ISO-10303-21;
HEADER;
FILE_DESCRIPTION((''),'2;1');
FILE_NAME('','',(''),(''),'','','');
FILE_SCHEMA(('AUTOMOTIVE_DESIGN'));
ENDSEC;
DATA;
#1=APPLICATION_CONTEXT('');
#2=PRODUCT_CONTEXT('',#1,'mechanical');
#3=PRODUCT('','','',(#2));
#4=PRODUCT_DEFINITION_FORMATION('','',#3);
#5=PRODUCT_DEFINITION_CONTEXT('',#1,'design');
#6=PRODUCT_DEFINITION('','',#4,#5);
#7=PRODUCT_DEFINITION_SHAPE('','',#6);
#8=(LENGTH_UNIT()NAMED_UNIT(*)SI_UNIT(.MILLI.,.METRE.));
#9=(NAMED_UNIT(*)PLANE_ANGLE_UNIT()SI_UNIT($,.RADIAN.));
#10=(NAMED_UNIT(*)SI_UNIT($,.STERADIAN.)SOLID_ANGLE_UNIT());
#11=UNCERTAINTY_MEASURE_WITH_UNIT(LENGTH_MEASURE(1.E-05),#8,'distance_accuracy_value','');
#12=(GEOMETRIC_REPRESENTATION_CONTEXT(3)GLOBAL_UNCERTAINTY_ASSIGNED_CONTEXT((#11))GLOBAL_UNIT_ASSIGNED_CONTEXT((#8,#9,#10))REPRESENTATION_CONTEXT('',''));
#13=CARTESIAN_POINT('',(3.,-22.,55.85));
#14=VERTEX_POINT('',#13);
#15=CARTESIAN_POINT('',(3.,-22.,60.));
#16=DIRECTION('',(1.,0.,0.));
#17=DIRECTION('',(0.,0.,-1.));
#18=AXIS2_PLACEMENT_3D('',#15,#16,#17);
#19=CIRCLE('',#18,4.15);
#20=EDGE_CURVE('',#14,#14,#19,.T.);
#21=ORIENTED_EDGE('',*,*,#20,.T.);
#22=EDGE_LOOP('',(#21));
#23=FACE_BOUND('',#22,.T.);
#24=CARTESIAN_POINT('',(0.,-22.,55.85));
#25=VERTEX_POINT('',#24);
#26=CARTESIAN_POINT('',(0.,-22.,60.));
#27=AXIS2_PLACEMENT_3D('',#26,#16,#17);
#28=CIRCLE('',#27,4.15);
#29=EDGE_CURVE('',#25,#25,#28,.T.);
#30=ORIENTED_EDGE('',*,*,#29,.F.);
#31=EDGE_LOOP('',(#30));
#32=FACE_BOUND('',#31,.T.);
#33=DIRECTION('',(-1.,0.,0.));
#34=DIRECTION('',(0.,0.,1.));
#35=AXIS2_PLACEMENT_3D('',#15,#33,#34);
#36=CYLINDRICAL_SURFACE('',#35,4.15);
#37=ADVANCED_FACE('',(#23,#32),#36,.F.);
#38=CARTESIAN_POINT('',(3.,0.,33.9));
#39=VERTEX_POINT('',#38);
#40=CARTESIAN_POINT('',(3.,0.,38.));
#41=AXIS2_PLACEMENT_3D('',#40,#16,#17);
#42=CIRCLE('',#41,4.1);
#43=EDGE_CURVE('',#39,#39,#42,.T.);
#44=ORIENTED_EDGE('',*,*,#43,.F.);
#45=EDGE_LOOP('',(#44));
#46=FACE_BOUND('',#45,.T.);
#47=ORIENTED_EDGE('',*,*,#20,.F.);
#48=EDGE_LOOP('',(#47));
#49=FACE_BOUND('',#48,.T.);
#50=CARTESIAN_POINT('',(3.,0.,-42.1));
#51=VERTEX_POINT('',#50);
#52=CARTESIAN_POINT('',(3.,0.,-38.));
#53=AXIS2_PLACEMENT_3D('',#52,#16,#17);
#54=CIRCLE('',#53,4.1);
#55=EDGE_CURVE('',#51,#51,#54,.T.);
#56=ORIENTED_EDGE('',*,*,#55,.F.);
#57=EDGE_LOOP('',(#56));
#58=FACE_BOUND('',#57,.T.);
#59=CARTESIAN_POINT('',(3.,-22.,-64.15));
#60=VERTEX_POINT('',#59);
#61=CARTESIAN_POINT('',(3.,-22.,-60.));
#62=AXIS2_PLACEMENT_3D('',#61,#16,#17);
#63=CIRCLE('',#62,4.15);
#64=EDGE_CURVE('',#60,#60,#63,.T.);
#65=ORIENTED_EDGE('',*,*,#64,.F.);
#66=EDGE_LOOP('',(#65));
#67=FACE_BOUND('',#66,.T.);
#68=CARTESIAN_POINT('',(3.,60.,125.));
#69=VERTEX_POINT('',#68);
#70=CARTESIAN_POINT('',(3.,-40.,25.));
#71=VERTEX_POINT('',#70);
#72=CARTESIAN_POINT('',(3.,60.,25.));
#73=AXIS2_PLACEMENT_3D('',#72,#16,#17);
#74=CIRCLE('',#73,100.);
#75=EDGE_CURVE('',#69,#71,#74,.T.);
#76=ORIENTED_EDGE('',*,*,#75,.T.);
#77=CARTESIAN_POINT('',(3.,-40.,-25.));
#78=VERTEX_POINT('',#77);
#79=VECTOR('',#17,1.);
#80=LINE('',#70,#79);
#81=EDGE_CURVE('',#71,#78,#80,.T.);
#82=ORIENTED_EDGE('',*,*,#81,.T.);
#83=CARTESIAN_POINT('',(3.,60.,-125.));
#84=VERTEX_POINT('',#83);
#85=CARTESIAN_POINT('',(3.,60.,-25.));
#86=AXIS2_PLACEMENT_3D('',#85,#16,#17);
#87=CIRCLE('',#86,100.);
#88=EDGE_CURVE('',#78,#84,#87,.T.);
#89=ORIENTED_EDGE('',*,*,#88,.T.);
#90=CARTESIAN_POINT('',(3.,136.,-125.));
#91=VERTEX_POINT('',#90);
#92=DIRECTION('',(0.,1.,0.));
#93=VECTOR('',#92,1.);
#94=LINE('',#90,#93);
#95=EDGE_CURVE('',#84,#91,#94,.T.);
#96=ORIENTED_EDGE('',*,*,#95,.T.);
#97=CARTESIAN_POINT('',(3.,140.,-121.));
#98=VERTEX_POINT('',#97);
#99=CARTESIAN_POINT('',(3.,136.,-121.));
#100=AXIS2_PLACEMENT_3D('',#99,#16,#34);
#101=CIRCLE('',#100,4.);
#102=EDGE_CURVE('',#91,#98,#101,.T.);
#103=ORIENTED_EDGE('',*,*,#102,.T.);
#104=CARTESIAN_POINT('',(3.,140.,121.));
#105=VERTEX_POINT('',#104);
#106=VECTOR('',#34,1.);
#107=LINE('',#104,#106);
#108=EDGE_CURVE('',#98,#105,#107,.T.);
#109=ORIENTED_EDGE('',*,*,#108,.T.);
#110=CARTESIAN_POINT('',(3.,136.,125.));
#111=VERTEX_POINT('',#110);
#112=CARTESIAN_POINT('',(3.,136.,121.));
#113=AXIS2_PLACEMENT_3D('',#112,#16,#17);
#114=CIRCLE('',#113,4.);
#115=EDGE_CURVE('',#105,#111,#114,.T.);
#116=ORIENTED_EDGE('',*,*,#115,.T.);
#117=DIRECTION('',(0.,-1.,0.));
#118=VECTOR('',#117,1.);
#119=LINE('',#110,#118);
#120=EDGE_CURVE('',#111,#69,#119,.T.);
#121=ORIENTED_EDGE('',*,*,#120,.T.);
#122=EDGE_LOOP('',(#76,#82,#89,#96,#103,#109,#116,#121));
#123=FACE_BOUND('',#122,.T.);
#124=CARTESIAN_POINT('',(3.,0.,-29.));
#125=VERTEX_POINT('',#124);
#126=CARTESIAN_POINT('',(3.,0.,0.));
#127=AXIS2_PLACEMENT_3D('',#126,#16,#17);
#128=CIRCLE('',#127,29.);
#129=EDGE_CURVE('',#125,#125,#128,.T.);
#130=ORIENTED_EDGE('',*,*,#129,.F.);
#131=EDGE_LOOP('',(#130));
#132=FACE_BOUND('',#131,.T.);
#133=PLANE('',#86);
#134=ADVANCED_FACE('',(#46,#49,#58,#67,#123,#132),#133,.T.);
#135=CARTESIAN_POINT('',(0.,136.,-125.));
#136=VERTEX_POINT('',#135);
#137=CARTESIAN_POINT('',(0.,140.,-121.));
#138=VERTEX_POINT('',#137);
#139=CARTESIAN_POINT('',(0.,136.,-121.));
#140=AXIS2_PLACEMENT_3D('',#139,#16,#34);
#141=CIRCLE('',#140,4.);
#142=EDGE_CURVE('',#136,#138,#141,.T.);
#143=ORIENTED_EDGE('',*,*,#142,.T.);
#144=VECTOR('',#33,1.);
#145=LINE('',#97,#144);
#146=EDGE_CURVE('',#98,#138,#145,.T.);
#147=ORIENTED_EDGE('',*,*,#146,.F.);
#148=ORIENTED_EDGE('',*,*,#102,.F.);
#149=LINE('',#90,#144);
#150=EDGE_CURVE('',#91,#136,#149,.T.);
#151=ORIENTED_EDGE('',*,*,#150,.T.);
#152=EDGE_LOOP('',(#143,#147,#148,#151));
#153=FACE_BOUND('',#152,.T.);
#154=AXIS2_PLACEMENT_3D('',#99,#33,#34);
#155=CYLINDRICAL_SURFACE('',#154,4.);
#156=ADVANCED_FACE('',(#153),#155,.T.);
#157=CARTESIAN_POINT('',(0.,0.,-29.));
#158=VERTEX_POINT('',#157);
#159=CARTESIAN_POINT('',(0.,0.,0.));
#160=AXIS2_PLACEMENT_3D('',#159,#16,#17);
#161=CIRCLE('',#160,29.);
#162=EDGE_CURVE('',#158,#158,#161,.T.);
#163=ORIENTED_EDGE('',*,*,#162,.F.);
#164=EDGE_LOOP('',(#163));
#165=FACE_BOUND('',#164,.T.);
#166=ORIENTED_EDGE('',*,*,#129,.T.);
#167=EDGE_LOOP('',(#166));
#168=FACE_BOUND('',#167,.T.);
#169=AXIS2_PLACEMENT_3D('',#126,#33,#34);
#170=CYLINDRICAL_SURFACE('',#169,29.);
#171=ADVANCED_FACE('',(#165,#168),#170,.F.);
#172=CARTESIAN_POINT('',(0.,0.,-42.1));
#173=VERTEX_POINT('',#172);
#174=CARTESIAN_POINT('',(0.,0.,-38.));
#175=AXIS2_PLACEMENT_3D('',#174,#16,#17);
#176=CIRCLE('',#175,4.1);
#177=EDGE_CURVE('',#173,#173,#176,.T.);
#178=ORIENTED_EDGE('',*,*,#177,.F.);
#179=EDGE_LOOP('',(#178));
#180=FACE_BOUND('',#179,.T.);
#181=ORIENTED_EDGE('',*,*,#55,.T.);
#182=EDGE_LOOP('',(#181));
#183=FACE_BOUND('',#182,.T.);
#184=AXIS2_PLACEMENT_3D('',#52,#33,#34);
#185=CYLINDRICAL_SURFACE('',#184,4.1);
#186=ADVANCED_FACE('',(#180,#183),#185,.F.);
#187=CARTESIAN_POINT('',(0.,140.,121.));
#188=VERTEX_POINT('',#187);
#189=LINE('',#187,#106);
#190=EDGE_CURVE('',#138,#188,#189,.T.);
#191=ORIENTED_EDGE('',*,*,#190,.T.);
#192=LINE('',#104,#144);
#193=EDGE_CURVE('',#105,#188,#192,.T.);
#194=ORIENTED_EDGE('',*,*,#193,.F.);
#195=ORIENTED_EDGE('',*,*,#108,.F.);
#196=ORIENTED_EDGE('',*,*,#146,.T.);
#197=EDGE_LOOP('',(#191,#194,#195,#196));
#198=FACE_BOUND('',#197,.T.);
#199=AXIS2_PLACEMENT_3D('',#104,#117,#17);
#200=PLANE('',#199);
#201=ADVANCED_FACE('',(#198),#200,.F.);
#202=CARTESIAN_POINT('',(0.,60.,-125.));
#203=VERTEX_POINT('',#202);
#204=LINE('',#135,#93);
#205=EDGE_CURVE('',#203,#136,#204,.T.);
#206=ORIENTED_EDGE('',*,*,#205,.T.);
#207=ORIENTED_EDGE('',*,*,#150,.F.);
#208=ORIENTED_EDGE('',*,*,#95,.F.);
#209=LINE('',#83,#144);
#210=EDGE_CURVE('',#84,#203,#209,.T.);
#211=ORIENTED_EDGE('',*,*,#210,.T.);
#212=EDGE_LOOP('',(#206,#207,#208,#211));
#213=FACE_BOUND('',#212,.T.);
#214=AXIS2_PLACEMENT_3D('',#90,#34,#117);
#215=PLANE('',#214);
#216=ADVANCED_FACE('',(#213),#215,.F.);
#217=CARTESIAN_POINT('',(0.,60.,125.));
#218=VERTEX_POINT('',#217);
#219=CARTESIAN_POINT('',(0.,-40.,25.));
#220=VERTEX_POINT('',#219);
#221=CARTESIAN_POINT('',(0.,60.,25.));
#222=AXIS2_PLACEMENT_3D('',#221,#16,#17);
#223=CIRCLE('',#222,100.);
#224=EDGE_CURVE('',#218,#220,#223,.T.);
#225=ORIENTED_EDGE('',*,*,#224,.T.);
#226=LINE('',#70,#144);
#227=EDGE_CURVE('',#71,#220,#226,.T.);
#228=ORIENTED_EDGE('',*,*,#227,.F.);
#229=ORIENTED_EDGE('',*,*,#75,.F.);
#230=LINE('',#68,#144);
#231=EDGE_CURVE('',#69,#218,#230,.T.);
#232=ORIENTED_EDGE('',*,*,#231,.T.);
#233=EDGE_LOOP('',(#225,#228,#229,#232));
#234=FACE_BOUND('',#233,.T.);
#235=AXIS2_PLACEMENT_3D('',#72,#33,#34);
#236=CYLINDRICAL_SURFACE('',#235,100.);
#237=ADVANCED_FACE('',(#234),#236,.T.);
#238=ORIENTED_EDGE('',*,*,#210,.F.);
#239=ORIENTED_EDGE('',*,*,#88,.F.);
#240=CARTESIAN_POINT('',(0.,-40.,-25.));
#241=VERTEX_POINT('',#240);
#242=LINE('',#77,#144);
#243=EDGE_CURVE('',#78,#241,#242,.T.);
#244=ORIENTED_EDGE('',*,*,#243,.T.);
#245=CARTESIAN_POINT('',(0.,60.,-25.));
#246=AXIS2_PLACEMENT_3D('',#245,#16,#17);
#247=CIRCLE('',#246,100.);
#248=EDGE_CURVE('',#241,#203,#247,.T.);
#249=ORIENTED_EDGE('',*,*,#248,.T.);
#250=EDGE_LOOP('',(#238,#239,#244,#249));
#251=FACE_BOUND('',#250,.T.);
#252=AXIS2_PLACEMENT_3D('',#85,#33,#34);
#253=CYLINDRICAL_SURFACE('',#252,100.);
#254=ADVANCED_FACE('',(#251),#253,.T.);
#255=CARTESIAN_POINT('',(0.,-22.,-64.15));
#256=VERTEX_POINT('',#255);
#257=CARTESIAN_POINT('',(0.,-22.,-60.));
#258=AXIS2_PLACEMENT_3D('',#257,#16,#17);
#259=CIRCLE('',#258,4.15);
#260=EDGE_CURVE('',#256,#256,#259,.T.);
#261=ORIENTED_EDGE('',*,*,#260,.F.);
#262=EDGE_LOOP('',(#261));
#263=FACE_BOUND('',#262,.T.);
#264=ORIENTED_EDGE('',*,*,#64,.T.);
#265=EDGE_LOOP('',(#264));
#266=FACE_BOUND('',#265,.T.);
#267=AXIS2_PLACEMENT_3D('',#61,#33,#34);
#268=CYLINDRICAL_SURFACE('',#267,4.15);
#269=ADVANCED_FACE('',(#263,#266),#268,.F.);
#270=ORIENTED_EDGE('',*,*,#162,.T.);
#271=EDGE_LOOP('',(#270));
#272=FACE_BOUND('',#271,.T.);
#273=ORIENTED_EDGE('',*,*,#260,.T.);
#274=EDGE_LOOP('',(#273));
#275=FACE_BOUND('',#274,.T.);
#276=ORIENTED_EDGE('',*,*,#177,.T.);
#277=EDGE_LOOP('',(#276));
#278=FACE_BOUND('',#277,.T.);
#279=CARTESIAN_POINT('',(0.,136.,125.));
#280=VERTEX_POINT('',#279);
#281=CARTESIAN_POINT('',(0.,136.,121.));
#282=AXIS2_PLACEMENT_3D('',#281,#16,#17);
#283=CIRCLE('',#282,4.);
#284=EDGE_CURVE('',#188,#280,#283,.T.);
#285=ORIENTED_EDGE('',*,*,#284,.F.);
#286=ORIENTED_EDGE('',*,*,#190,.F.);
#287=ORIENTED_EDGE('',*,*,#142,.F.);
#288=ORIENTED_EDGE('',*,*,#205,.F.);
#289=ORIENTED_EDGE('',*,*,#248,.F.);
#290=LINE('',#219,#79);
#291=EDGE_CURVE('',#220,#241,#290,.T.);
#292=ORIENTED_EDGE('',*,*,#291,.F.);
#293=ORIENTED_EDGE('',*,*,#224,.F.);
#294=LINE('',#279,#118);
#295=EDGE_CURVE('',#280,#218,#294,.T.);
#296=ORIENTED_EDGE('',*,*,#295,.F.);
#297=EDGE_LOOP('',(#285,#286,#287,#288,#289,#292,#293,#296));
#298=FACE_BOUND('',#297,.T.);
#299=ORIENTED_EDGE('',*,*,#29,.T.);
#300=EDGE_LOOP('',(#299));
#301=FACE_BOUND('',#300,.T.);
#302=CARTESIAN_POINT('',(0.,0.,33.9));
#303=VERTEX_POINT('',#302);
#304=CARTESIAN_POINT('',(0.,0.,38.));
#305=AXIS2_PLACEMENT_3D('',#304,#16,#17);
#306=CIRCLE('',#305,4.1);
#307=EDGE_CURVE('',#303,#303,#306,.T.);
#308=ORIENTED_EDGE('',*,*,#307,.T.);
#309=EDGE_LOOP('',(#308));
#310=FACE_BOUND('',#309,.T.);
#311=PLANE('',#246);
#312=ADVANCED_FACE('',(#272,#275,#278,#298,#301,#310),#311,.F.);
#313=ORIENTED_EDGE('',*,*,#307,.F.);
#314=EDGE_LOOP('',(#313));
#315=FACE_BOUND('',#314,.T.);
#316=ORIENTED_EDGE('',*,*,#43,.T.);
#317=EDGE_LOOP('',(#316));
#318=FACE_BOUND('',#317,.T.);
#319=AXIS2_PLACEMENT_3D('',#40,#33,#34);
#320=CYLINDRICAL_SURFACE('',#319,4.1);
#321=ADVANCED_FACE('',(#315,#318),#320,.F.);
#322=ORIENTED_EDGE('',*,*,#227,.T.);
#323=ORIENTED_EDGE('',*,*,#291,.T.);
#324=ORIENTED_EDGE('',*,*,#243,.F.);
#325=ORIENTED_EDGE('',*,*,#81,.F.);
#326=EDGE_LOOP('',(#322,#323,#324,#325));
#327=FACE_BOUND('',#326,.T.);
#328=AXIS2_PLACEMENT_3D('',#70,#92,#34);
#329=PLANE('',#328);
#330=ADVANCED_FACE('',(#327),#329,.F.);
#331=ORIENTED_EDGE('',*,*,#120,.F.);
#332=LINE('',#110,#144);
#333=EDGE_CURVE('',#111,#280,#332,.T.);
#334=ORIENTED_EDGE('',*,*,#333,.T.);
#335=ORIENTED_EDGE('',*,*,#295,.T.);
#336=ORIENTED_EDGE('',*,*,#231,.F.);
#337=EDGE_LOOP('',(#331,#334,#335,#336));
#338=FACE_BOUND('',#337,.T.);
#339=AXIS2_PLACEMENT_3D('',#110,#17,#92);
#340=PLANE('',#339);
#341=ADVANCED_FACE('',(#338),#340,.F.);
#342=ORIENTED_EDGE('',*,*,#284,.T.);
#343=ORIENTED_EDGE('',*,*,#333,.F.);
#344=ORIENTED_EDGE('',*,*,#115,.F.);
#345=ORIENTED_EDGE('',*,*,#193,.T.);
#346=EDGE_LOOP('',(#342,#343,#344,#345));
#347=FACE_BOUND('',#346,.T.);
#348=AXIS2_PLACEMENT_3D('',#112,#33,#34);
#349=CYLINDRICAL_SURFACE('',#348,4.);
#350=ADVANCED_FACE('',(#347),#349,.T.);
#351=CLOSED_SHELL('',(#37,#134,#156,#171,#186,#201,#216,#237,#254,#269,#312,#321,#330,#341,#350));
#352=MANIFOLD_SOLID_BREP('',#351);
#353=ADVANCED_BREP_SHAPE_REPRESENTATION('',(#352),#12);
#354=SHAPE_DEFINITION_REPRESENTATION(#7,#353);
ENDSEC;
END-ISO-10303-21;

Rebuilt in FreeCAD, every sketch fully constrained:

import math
import FreeCAD as App
import Part
import Sketcher

V = App.Vector

doc = App.newDocument("Part")
body = doc.addObject("PartDesign::Body", "Body")

# Sketch on YZ plane
sketch1 = body.newObject("Sketcher::SketchObject", "Sketch")
sketch1.AttachmentSupport = (doc.getObject("YZ_Plane"), [""])
sketch1.MapMode = "FlatFace"
sketch1.addGeometry([
    Part.LineSegment(V(140, -121, 0), V(140, 121, 0)),  # 0
    Part.ArcOfCircle(Part.Circle(V(136, 121, 0), V(0, 0, 1), 4), math.radians(0), math.radians(90)),  # 1
    Part.LineSegment(V(136, 125, 0), V(60, 125, 0)),  # 2
    Part.ArcOfCircle(Part.Circle(V(60, 25, 0), V(0, 0, 1), 100), math.radians(90), math.radians(180)),  # 3
    Part.LineSegment(V(-40, 25, 0), V(-40, -25, 0)),  # 4
    Part.ArcOfCircle(Part.Circle(V(60, -25, 0), V(0, 0, 1), 100), math.radians(180), math.radians(270)),  # 5
    Part.LineSegment(V(60, -125, 0), V(136, -125, 0)),  # 6
    Part.ArcOfCircle(Part.Circle(V(136, -121, 0), V(0, 0, 1), 4), math.radians(-90), math.radians(0)),  # 7
    Part.Circle(V(-22, -60, 0), V(0, 0, 1), 4.2),  # 8
    Part.Circle(V(-22, 60, 0), V(0, 0, 1), 4.2),  # 9
    Part.Circle(V(0, -38, 0), V(0, 0, 1), 4.1),  # 10
    Part.Circle(V(0, 0, 0), V(0, 0, 1), 29),  # 11
    Part.Circle(V(0, 38, 0), V(0, 0, 1), 4.1),  # 12
], False)
sketch1.addConstraint([
    Sketcher.Constraint("Tangent", 0, 2, 1, 1),
    Sketcher.Constraint("Tangent", 1, 2, 2, 1),
    Sketcher.Constraint("Tangent", 2, 2, 3, 1),
    Sketcher.Constraint("Tangent", 3, 2, 4, 1),
    Sketcher.Constraint("Tangent", 4, 2, 5, 1),
    Sketcher.Constraint("Tangent", 5, 2, 6, 1),
    Sketcher.Constraint("Tangent", 6, 2, 7, 1),
    Sketcher.Constraint("Tangent", 7, 2, 0, 1),
    Sketcher.Constraint("Vertical", 0),
    Sketcher.Constraint("Horizontal", 2),
    Sketcher.Constraint("Vertical", 4),
    Sketcher.Constraint("Horizontal", 6),
    Sketcher.Constraint("Coincident", 11, 3, -1, 1),
    Sketcher.Constraint("Equal", 3, 5),
    Sketcher.Constraint("Equal", 1, 7),
    Sketcher.Constraint("Equal", 8, 9),
    Sketcher.Constraint("Equal", 10, 12),
    Sketcher.Constraint("Symmetric", 10, 3, 12, 3, -1, 1),
    Sketcher.Constraint("Symmetric", 8, 3, 9, 3, -1),
    Sketcher.Constraint("PointOnObject", 10, 3, -2),
    Sketcher.Constraint("Diameter", 11, 58.0),
    Sketcher.Constraint("Radius", 1, 4.0),
    Sketcher.Constraint("Radius", 3, 100.0),
    Sketcher.Constraint("Diameter", 8, 8.3),
    Sketcher.Constraint("Diameter", 10, 8.2),
    Sketcher.Constraint("DistanceX", 2, 2, 2, 1, 76.0),
    Sketcher.Constraint("DistanceY", 0, 1, 0, 2, 242.0),
    Sketcher.Constraint("DistanceX", -1, 1, 1, 3, 136.0),
    Sketcher.Constraint("DistanceY", -1, 1, 1, 3, 121.0),
    Sketcher.Constraint("DistanceX", 8, 3, -1, 1, 22.0),
    Sketcher.Constraint("DistanceY", 8, 3, -1, 1, 60.0),
    Sketcher.Constraint("DistanceY", 10, 3, -1, 1, 38.0),
])
pad1 = body.newObject("PartDesign::Pad", "Pad")
pad1.Profile = sketch1
pad1.Length = 3

doc.recompute()
